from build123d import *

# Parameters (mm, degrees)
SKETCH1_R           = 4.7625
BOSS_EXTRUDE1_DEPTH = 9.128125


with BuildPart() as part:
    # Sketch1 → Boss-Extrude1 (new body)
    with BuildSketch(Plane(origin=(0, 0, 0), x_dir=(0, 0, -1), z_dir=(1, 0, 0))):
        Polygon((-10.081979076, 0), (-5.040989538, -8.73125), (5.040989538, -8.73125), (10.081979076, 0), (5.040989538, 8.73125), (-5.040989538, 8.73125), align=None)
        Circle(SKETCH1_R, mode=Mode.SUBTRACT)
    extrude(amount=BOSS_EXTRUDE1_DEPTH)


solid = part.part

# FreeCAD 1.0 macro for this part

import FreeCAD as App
import Part
import Sketcher
from FreeCAD import Vector
Q = App.Units.Quantity


def add_polygon(sketch, points):
    """Adds a closed chain of lines whose ends are joined by coincident constraints."""
    first, n = sketch.GeometryCount, len(points)
    for a, b in zip(points, points[1:] + points[:1]):
        sketch.addGeometry(Part.LineSegment(App.Vector(*a, 0), App.Vector(*b, 0)), False)
    for i in range(n):
        sketch.addConstraint(Sketcher.Constraint("Coincident", first + i, 2, first + (i + 1) % n, 1))

doc = App.newDocument("Part")
body = doc.addObject("PartDesign::Body", "Body")

# Sketch on YZ plane
sketch1 = body.newObject("Sketcher::SketchObject", "Sketch")
sketch1.AttachmentSupport = (doc.getObject("YZ_Plane"), [""])
sketch1.MapMode = "FlatFace"
add_polygon(sketch1, [(0, 10.1), (-8.7, 5), (-8.7, -5), (0, -10.1), (8.7, -5), (8.7, 5)])  # lines 0-5
sketch1.addGeometry(Part.Circle(Vector(0, 0, 0), Vector(0, 0, 1), 4.8), False)  # 6
sketch1.addConstraint([
    Sketcher.Constraint("Vertical", 1),
    Sketcher.Constraint("Vertical", 4),
    Sketcher.Constraint("Coincident", 6, 3, -1, 1),
    Sketcher.Constraint("Symmetric", 0, 2, 3, 2, -1, 1),
    Sketcher.Constraint("Symmetric", 2, 2, 5, 2, -1, 1),
    Sketcher.Constraint("PointOnObject", 2, 2, -2),
    Sketcher.Constraint("Parallel", 2, 5),
    Sketcher.Constraint("Horizontal", 1, 2, 3, 2),
    Sketcher.Constraint("Diameter", 6, Q("0.375 in")),
    Sketcher.Constraint("Angle", 0, Q("-150 deg")),
    Sketcher.Constraint("DistanceX", 0, 2, -1, 1, Q("0.34375 in")),
    Sketcher.Constraint("DistanceY", 1, 2, 1, 1, 10.081979),
])
pad1 = body.newObject("PartDesign::Pad", "Pad")
pad1.Profile = sketch1
pad1.Length = Q("0.359375 in")

doc.recompute()
